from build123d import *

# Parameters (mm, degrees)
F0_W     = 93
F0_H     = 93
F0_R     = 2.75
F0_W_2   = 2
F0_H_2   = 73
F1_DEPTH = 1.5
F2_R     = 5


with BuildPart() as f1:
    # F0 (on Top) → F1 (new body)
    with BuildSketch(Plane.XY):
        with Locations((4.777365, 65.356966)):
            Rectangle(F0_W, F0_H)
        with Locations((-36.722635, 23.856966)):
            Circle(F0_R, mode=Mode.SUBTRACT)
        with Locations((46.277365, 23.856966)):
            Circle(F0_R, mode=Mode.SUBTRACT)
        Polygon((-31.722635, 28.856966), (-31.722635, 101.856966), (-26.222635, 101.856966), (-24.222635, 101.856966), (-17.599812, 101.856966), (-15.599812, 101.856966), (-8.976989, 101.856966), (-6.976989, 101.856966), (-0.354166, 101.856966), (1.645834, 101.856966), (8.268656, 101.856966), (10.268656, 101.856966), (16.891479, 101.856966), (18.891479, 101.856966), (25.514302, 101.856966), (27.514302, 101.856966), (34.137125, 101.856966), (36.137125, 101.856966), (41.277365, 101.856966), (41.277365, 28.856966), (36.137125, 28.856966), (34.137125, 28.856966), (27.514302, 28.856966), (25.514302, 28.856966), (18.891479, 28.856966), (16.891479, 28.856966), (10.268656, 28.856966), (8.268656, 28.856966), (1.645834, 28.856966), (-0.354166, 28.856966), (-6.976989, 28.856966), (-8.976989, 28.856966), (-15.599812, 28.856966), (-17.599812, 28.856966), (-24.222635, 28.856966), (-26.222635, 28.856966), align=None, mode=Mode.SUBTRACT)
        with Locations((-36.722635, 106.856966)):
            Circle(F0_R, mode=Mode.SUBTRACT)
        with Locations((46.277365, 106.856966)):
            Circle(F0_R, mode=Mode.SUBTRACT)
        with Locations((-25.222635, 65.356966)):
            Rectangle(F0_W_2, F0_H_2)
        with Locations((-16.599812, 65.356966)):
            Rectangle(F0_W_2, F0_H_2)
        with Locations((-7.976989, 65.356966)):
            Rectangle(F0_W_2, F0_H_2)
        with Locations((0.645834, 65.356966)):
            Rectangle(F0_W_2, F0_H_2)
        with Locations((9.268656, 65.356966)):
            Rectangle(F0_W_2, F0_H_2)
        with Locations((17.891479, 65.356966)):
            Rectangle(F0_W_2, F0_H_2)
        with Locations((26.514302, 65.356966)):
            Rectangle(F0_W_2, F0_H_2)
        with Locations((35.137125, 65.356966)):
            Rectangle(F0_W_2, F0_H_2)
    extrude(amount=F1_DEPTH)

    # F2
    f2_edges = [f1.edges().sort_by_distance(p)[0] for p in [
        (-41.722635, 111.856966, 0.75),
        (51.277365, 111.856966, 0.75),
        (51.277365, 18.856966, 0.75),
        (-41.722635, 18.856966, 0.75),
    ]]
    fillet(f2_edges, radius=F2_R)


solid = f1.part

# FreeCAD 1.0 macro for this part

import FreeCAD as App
import Part
import Sketcher

V = App.Vector


def edges_at(feature, points):
    """Names of the edges that pass closest to the given points."""
    edges = feature.Shape.Edges
    near = lambda p: min(range(len(edges)), key=lambda i: edges[i].distToShape(Part.Vertex(*p))[0])
    return sorted({f"Edge{near(p) + 1}" for p in points})

doc = App.newDocument("Part")
body = doc.addObject("PartDesign::Body", "Body")

sketch1 = body.newObject("Sketcher::SketchObject", "Sketch")
sketch1.AttachmentSupport = (doc.getObject("XY_Plane"), [""])
sketch1.MapMode = "FlatFace"
sketch1.addGeometry(Part.LineSegment(V(-41.7, 111.9, 0), V(-41.7, 18.9, 0)), False)
sketch1.addGeometry(Part.LineSegment(V(-41.7, 18.9, 0), V(51.3, 18.9, 0)), False)
sketch1.addGeometry(Part.LineSegment(V(51.3, 18.9, 0), V(51.3, 111.9, 0)), False)
sketch1.addGeometry(Part.LineSegment(V(51.3, 111.9, 0), V(-41.7, 111.9, 0)), False)
sketch1.addGeometry(Part.Circle(V(-36.7, 23.9, 0), V(0, 0, 1), 2.8), False)
sketch1.addGeometry(Part.Circle(V(46.3, 23.9, 0), V(0, 0, 1), 2.8), False)
sketch1.addGeometry(Part.Circle(V(-36.7, 106.9, 0), V(0, 0, 1), 2.8), False)
sketch1.addGeometry(Part.LineSegment(V(41.3, 28.9, 0), V(36.1, 28.9, 0)), False)
sketch1.addGeometry(Part.LineSegment(V(36.1, 28.9, 0), V(36.1, 101.9, 0)), False)
sketch1.addGeometry(Part.LineSegment(V(36.1, 101.9, 0), V(41.3, 101.9, 0)), False)
sketch1.addGeometry(Part.LineSegment(V(41.3, 101.9, 0), V(41.3, 28.9, 0)), False)
sketch1.addGeometry(Part.LineSegment(V(34.1, 28.9, 0), V(27.5, 28.9, 0)), False)
sketch1.addGeometry(Part.LineSegment(V(27.5, 28.9, 0), V(27.5, 101.9, 0)), False)
sketch1.addGeometry(Part.LineSegment(V(27.5, 101.9, 0), V(34.1, 101.9, 0)), False)
sketch1.addGeometry(Part.LineSegment(V(34.1, 101.9, 0), V(34.1, 28.9, 0)), False)
sketch1.addGeometry(Part.LineSegment(V(25.5, 28.9, 0), V(18.9, 28.9, 0)), False)
sketch1.addGeometry(Part.LineSegment(V(18.9, 28.9, 0), V(18.9, 101.9, 0)), False)
sketch1.addGeometry(Part.LineSegment(V(18.9, 101.9, 0), V(25.5, 101.9, 0)), False)
sketch1.addGeometry(Part.LineSegment(V(25.5, 101.9, 0), V(25.5, 28.9, 0)), False)
sketch1.addGeometry(Part.LineSegment(V(16.9, 28.9, 0), V(10.3, 28.9, 0)), False)
sketch1.addGeometry(Part.LineSegment(V(10.3, 28.9, 0), V(10.3, 101.9, 0)), False)
sketch1.addGeometry(Part.LineSegment(V(10.3, 101.9, 0), V(16.9, 101.9, 0)), False)
sketch1.addGeometry(Part.LineSegment(V(16.9, 101.9, 0), V(16.9, 28.9, 0)), False)
sketch1.addGeometry(Part.LineSegment(V(8.3, 28.9, 0), V(1.6, 28.9, 0)), False)
sketch1.addGeometry(Part.LineSegment(V(1.6, 28.9, 0), V(1.6, 101.9, 0)), False)
sketch1.addGeometry(Part.LineSegment(V(1.6, 101.9, 0), V(8.3, 101.9, 0)), False)
sketch1.addGeometry(Part.LineSegment(V(8.3, 101.9, 0), V(8.3, 28.9, 0)), False)
sketch1.addGeometry(Part.LineSegment(V(-0.4, 28.9, 0), V(-7, 28.9, 0)), False)
sketch1.addGeometry(Part.LineSegment(V(-7, 28.9, 0), V(-7, 101.9, 0)), False)
sketch1.addGeometry(Part.LineSegment(V(-7, 101.9, 0), V(-0.4, 101.9, 0)), False)
sketch1.addGeometry(Part.LineSegment(V(-0.4, 101.9, 0), V(-0.4, 28.9, 0)), False)
sketch1.addGeometry(Part.LineSegment(V(-9, 28.9, 0), V(-15.6, 28.9, 0)), False)
sketch1.addGeometry(Part.LineSegment(V(-15.6, 28.9, 0), V(-15.6, 101.9, 0)), False)
sketch1.addGeometry(Part.LineSegment(V(-15.6, 101.9, 0), V(-9, 101.9, 0)), False)
sketch1.addGeometry(Part.LineSegment(V(-9, 101.9, 0), V(-9, 28.9, 0)), False)
sketch1.addGeometry(Part.LineSegment(V(-17.6, 28.9, 0), V(-24.2, 28.9, 0)), False)
sketch1.addGeometry(Part.LineSegment(V(-24.2, 28.9, 0), V(-24.2, 101.9, 0)), False)
sketch1.addGeometry(Part.LineSegment(V(-24.2, 101.9, 0), V(-17.6, 101.9, 0)), False)
sketch1.addGeometry(Part.LineSegment(V(-17.6, 101.9, 0), V(-17.6, 28.9, 0)), False)
sketch1.addGeometry(Part.LineSegment(V(-26.2, 28.9, 0), V(-31.7, 28.9, 0)), False)
sketch1.addGeometry(Part.LineSegment(V(-31.7, 28.9, 0), V(-31.7, 101.9, 0)), False)
sketch1.addGeometry(Part.LineSegment(V(-31.7, 101.9, 0), V(-26.2, 101.9, 0)), False)
sketch1.addGeometry(Part.LineSegment(V(-26.2, 101.9, 0), V(-26.2, 28.9, 0)), False)
sketch1.addGeometry(Part.Circle(V(46.3, 106.9, 0), V(0, 0, 1), 2.8), False)
sketch1.addConstraint(Sketcher.Constraint("Coincident", 0, 2, 1, 1))
sketch1.addConstraint(Sketcher.Constraint("Coincident", 1, 2, 2, 1))
sketch1.addConstraint(Sketcher.Constraint("Coincident", 2, 2, 3, 1))
sketch1.addConstraint(Sketcher.Constraint("Coincident", 3, 2, 0, 1))
sketch1.addConstraint(Sketcher.Constraint("Coincident", 7, 2, 8, 1))
sketch1.addConstraint(Sketcher.Constraint("Coincident", 8, 2, 9, 1))
sketch1.addConstraint(Sketcher.Constraint("Coincident", 9, 2, 10, 1))
sketch1.addConstraint(Sketcher.Constraint("Coincident", 10, 2, 7, 1))
sketch1.addConstraint(Sketcher.Constraint("Coincident", 11, 2, 12, 1))
sketch1.addConstraint(Sketcher.Constraint("Coincident", 12, 2, 13, 1))
sketch1.addConstraint(Sketcher.Constraint("Coincident", 13, 2, 14, 1))
sketch1.addConstraint(Sketcher.Constraint("Coincident", 14, 2, 11, 1))
sketch1.addConstraint(Sketcher.Constraint("Coincident", 15, 2, 16, 1))
sketch1.addConstraint(Sketcher.Constraint("Coincident", 16, 2, 17, 1))
sketch1.addConstraint(Sketcher.Constraint("Coincident", 17, 2, 18, 1))
sketch1.addConstraint(Sketcher.Constraint("Coincident", 18, 2, 15, 1))
sketch1.addConstraint(Sketcher.Constraint("Coincident", 19, 2, 20, 1))
sketch1.addConstraint(Sketcher.Constraint("Coincident", 20, 2, 21, 1))
sketch1.addConstraint(Sketcher.Constraint("Coincident", 21, 2, 22, 1))
sketch1.addConstraint(Sketcher.Constraint("Coincident", 22, 2, 19, 1))
sketch1.addConstraint(Sketcher.Constraint("Coincident", 23, 2, 24, 1))
sketch1.addConstraint(Sketcher.Constraint("Coincident", 24, 2, 25, 1))
sketch1.addConstraint(Sketcher.Constraint("Coincident", 25, 2, 26, 1))
sketch1.addConstraint(Sketcher.Constraint("Coincident", 26, 2, 23, 1))
sketch1.addConstraint(Sketcher.Constraint("Coincident", 27, 2, 28, 1))
sketch1.addConstraint(Sketcher.Constraint("Coincident", 28, 2, 29, 1))
sketch1.addConstraint(Sketcher.Constraint("Coincident", 29, 2, 30, 1))
sketch1.addConstraint(Sketcher.Constraint("Coincident", 30, 2, 27, 1))
sketch1.addConstraint(Sketcher.Constraint("Coincident", 31, 2, 32, 1))
sketch1.addConstraint(Sketcher.Constraint("Coincident", 32, 2, 33, 1))
sketch1.addConstraint(Sketcher.Constraint("Coincident", 33, 2, 34, 1))
sketch1.addConstraint(Sketcher.Constraint("Coincident", 34, 2, 31, 1))
sketch1.addConstraint(Sketcher.Constraint("Coincident", 35, 2, 36, 1))
sketch1.addConstraint(Sketcher.Constraint("Coincident", 36, 2, 37, 1))
sketch1.addConstraint(Sketcher.Constraint("Coincident", 37, 2, 38, 1))
sketch1.addConstraint(Sketcher.Constraint("Coincident", 38, 2, 35, 1))
sketch1.addConstraint(Sketcher.Constraint("Coincident", 39, 2, 40, 1))
sketch1.addConstraint(Sketcher.Constraint("Coincident", 40, 2, 41, 1))
sketch1.addConstraint(Sketcher.Constraint("Coincident", 41, 2, 42, 1))
sketch1.addConstraint(Sketcher.Constraint("Coincident", 42, 2, 39, 1))
sketch1.addConstraint(Sketcher.Constraint("Vertical", 0))
sketch1.addConstraint(Sketcher.Constraint("Horizontal", 1))
sketch1.addConstraint(Sketcher.Constraint("Vertical", 2))
sketch1.addConstraint(Sketcher.Constraint("Horizontal", 3))
sketch1.addConstraint(Sketcher.Constraint("Horizontal", 7))
sketch1.addConstraint(Sketcher.Constraint("Vertical", 8))
sketch1.addConstraint(Sketcher.Constraint("Horizontal", 9))
sketch1.addConstraint(Sketcher.Constraint("Vertical", 10))
sketch1.addConstraint(Sketcher.Constraint("Horizontal", 11))
sketch1.addConstraint(Sketcher.Constraint("Vertical", 12))
sketch1.addConstraint(Sketcher.Constraint("Horizontal", 13))
sketch1.addConstraint(Sketcher.Constraint("Vertical", 14))
sketch1.addConstraint(Sketcher.Constraint("Horizontal", 15))
sketch1.addConstraint(Sketcher.Constraint("Vertical", 16))
sketch1.addConstraint(Sketcher.Constraint("Horizontal", 17))
sketch1.addConstraint(Sketcher.Constraint("Vertical", 18))
sketch1.addConstraint(Sketcher.Constraint("Horizontal", 19))
sketch1.addConstraint(Sketcher.Constraint("Vertical", 20))
sketch1.addConstraint(Sketcher.Constraint("Horizontal", 21))
sketch1.addConstraint(Sketcher.Constraint("Vertical", 22))
sketch1.addConstraint(Sketcher.Constraint("Horizontal", 23))
sketch1.addConstraint(Sketcher.Constraint("Vertical", 24))
sketch1.addConstraint(Sketcher.Constraint("Horizontal", 25))
sketch1.addConstraint(Sketcher.Constraint("Vertical", 26))
sketch1.addConstraint(Sketcher.Constraint("Horizontal", 27))
sketch1.addConstraint(Sketcher.Constraint("Vertical", 28))
sketch1.addConstraint(Sketcher.Constraint("Horizontal", 29))
sketch1.addConstraint(Sketcher.Constraint("Vertical", 30))
sketch1.addConstraint(Sketcher.Constraint("Horizontal", 31))
sketch1.addConstraint(Sketcher.Constraint("Vertical", 32))
sketch1.addConstraint(Sketcher.Constraint("Horizontal", 33))
sketch1.addConstraint(Sketcher.Constraint("Vertical", 34))
sketch1.addConstraint(Sketcher.Constraint("Horizontal", 35))
sketch1.addConstraint(Sketcher.Constraint("Vertical", 36))
sketch1.addConstraint(Sketcher.Constraint("Horizontal", 37))
sketch1.addConstraint(Sketcher.Constraint("Vertical", 38))
sketch1.addConstraint(Sketcher.Constraint("Horizontal", 39))
sketch1.addConstraint(Sketcher.Constraint("Vertical", 40))
sketch1.addConstraint(Sketcher.Constraint("Horizontal", 41))
sketch1.addConstraint(Sketcher.Constraint("Vertical", 42))
sketch1.addConstraint(Sketcher.Constraint("Equal", 4, 5))
sketch1.addConstraint(Sketcher.Constraint("Equal", 5, 6))
sketch1.addConstraint(Sketcher.Constraint("Equal", 6, 43))
sketch1.addConstraint(Sketcher.Constraint("Horizontal", 4, 3, 5, 3))
sketch1.addConstraint(Sketcher.Constraint("Horizontal", 6, 3, 43, 3))
sketch1.addConstraint(Sketcher.Constraint("Horizontal", 10, 2, 11, 2))
sketch1.addConstraint(Sketcher.Constraint("Horizontal", 9, 2, 12, 2))
sketch1.addConstraint(Sketcher.Constraint("Horizontal", 14, 2, 15, 2))
sketch1.addConstraint(Sketcher.Constraint("Horizontal", 13, 2, 16, 2))
sketch1.addConstraint(Sketcher.Constraint("Horizontal", 18, 2, 19, 2))
sketch1.addConstraint(Sketcher.Constraint("Horizontal", 17, 2, 20, 2))
sketch1.addConstraint(Sketcher.Constraint("Horizontal", 22, 2, 23, 2))
sketch1.addConstraint(Sketcher.Constraint("Horizontal", 21, 2, 24, 2))
sketch1.addConstraint(Sketcher.Constraint("Horizontal", 26, 2, 27, 2))
sketch1.addConstraint(Sketcher.Constraint("Horizontal", 25, 2, 28, 2))
sketch1.addConstraint(Sketcher.Constraint("Horizontal", 30, 2, 31, 2))
sketch1.addConstraint(Sketcher.Constraint("Horizontal", 29, 2, 32, 2))
sketch1.addConstraint(Sketcher.Constraint("Horizontal", 34, 2, 35, 2))
sketch1.addConstraint(Sketcher.Constraint("Horizontal", 33, 2, 36, 2))
sketch1.addConstraint(Sketcher.Constraint("Horizontal", 38, 2, 39, 2))
sketch1.addConstraint(Sketcher.Constraint("Horizontal", 37, 2, 40, 2))
sketch1.addConstraint(Sketcher.Constraint("Vertical", 4, 3, 6, 3))
sketch1.addConstraint(Sketcher.Constraint("Vertical", 5, 3, 43, 3))
sketch1.addConstraint(Sketcher.Constraint("Equal", 13, 15))
sketch1.addConstraint(Sketcher.Constraint("Equal", 17, 19))
sketch1.addConstraint(Sketcher.Constraint("Equal", 21, 23))
sketch1.addConstraint(Sketcher.Constraint("Equal", 25, 27))
sketch1.addConstraint(Sketcher.Constraint("Equal", 29, 31))
sketch1.addConstraint(Sketcher.Constraint("Equal", 33, 35))
sketch1.addConstraint(Sketcher.Constraint("Equal", 3, 0))
sketch1.addConstraint(Sketcher.Constraint("Diameter", 4, 5.5))
sketch1.addConstraint(Sketcher.Constraint("DistanceX", 1, 1, 1, 2, 93.0))
sketch1.addConstraint(Sketcher.Constraint("DistanceY", 8, 1, 8, 2, 73.0))
sketch1.addConstraint(Sketcher.Constraint("DistanceX", 39, 2, 39, 1, 5.5))
sketch1.addConstraint(Sketcher.Constraint("DistanceX", 4, 3, 5, 3, 83.0))
sketch1.addConstraint(Sketcher.Constraint("DistanceY", 4, 3, 6, 3, 83.0))
sketch1.addConstraint(Sketcher.Constraint("DistanceX", 0, 2, 4, 3, 5.0))
sketch1.addConstraint(Sketcher.Constraint("DistanceY", 0, 2, 4, 3, 5.0))
sketch1.addConstraint(Sketcher.Constraint("DistanceY", 5, 3, 7, 2, 5.0))
sketch1.addConstraint(Sketcher.Constraint("DistanceX", 9, 2, 43, 3, 5.0))
sketch1.addConstraint(Sketcher.Constraint("DistanceX", 13, 2, 8, 2, 2.0))
sketch1.addConstraint(Sketcher.Constraint("DistanceX", 17, 2, 12, 2, 2.0))
sketch1.addConstraint(Sketcher.Constraint("DistanceX", 21, 2, 16, 2, 2.0))
sketch1.addConstraint(Sketcher.Constraint("DistanceX", 25, 2, 20, 2, 2.0))
sketch1.addConstraint(Sketcher.Constraint("DistanceX", 29, 2, 24, 2, 2.0))
sketch1.addConstraint(Sketcher.Constraint("DistanceX", 33, 2, 28, 2, 2.0))
sketch1.addConstraint(Sketcher.Constraint("DistanceX", 37, 2, 32, 2, 2.0))
sketch1.addConstraint(Sketcher.Constraint("DistanceX", 4, 3, 39, 2, 5.0))
sketch1.addConstraint(Sketcher.Constraint("DistanceX", 41, 2, 36, 2, 2.0))
sketch1.addConstraint(Sketcher.Constraint("DistanceX", 7, 2, 7, 1, 5.14024))
sketch1.addConstraint(Sketcher.Constraint("DistanceX", -1, 1, 15, 2, 18.891479))
sketch1.addConstraint(Sketcher.Constraint("DistanceY", -1, 1, 4, 3, 23.856966))
pad1 = body.newObject("PartDesign::Pad", "Pad")
pad1.Profile = sketch1
pad1.Length = 1.5
doc.recompute()

fillet = body.newObject("PartDesign::Fillet", "Fillet")
fillet.Base = (pad1, edges_at(pad1, [
    (-41.723, 111.857, 0.75),
    (51.277, 111.857, 0.75),
    (51.277, 18.857, 0.75),
    (-41.723, 18.857, 0.75),
]))
fillet.Radius = 5

doc.recompute()
